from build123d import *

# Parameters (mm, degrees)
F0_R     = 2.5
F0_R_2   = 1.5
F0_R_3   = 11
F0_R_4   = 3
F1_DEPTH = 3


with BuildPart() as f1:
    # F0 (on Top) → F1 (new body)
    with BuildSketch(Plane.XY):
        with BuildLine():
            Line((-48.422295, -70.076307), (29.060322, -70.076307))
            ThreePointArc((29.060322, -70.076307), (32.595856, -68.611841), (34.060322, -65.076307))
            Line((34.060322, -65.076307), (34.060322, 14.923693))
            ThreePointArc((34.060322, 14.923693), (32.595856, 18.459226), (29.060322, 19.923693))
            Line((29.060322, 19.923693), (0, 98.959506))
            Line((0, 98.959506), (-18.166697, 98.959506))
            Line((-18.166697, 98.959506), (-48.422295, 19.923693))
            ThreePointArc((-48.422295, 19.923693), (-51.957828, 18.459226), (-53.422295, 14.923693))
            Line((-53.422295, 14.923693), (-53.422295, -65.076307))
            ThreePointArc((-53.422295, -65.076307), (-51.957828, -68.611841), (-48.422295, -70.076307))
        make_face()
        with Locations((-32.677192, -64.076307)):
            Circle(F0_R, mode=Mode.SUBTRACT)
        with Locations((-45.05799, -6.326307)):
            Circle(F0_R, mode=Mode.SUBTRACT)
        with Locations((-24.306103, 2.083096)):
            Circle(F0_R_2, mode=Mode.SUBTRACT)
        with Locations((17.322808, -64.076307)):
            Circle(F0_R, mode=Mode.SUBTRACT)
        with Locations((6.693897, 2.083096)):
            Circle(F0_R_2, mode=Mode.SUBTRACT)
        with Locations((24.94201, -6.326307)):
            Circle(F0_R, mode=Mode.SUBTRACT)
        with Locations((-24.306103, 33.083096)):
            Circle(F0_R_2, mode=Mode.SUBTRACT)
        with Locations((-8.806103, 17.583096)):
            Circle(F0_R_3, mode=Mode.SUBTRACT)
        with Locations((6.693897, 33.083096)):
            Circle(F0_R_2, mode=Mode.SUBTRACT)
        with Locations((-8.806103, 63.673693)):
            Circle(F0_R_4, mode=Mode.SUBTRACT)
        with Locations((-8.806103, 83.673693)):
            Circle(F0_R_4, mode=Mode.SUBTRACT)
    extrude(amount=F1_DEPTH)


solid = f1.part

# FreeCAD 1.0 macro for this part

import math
import FreeCAD as App
import Part
import Sketcher
from FreeCAD import Vector

doc = App.newDocument("Part")
params = doc.addObject("Spreadsheet::Sheet", "Params")
for row, (alias, value) in enumerate([
    ("sketch1_diameter", "5 mm"),
    ("sketch1_diameter2", "3 mm"),
    ("sketch1_diameter3", "22 mm"),
    ("sketch1_diameter4", "6 mm"),
    ("sketch1_radius", "5 mm"),
    ("pad1_length", "3 mm"),
], start=1):
    params.set(f"A{row}", alias)
    params.set(f"B{row}", "=" + value)
    params.setAlias(f"B{row}", alias)

body = doc.addObject("PartDesign::Body", "Body")

# Sketch on XY plane
sketch1 = body.newObject("Sketcher::SketchObject", "Sketch")
sketch1.AttachmentSupport = (doc.getObject("XY_Plane"), [""])
sketch1.MapMode = "FlatFace"
sketch1.addGeometry([
    Part.LineSegment(Vector(-48.4, -70.1, 0), Vector(29.1, -70.1, 0)),  # 0
    Part.ArcOfCircle(Part.Circle(Vector(29.1, -65.1, 0), Vector(0, 0, 1), 5), math.radians(-90), math.radians(0)),  # 1
    Part.LineSegment(Vector(34.1, -65.1, 0), Vector(34.1, 14.9, 0)),  # 2
    Part.ArcOfCircle(Part.Circle(Vector(29.1, 14.9, 0), Vector(0, 0, 1), 5), math.radians(0), math.radians(90)),  # 3
    Part.LineSegment(Vector(29.1, 19.9, 0), Vector(0, 99, 0)),  # 4
    Part.LineSegment(Vector(0, 99, 0), Vector(-18.2, 99, 0)),  # 5
    Part.LineSegment(Vector(-18.2, 99, 0), Vector(-48.4, 19.9, 0)),  # 6
    Part.ArcOfCircle(Part.Circle(Vector(-48.4, 14.9, 0), Vector(0, 0, 1), 5), math.radians(90), math.radians(180)),  # 7
    Part.LineSegment(Vector(-53.4, 14.9, 0), Vector(-53.4, -65.1, 0)),  # 8
    Part.ArcOfCircle(Part.Circle(Vector(-48.4, -65.1, 0), Vector(0, 0, 1), 5), math.radians(-180), math.radians(-90)),  # 9
    Part.Circle(Vector(-32.7, -64.1, 0), Vector(0, 0, 1), 2.5),  # 10
    Part.Circle(Vector(-45.1, -6.3, 0), Vector(0, 0, 1), 2.5),  # 11
    Part.Circle(Vector(-24.3, 2.1, 0), Vector(0, 0, 1), 1.5),  # 12
    Part.Circle(Vector(17.3, -64.1, 0), Vector(0, 0, 1), 2.5),  # 13
    Part.Circle(Vector(6.7, 2.1, 0), Vector(0, 0, 1), 1.5),  # 14
    Part.Circle(Vector(24.9, -6.3, 0), Vector(0, 0, 1), 2.5),  # 15
    Part.Circle(Vector(-24.3, 33.1, 0), Vector(0, 0, 1), 1.5),  # 16
    Part.Circle(Vector(-8.8, 17.6, 0), Vector(0, 0, 1), 11),  # 17
    Part.Circle(Vector(6.7, 33.1, 0), Vector(0, 0, 1), 1.5),  # 18
    Part.Circle(Vector(-8.8, 63.7, 0), Vector(0, 0, 1), 3),  # 19
    Part.Circle(Vector(-8.8, 83.7, 0), Vector(0, 0, 1), 3),  # 20
], False)
sketch1.addConstraint([
    Sketcher.Constraint("Tangent", 0, 2, 1, 1),
    Sketcher.Constraint("Tangent", 1, 2, 2, 1),
    Sketcher.Constraint("Tangent", 2, 2, 3, 1),
    Sketcher.Constraint("Coincident", 3, 2, 4, 1),
    Sketcher.Constraint("Coincident", 4, 2, 5, 1),
    Sketcher.Constraint("Coincident", 5, 2, 6, 1),
    Sketcher.Constraint("Coincident", 6, 2, 7, 1),
    Sketcher.Constraint("Tangent", 7, 2, 8, 1),
    Sketcher.Constraint("Tangent", 8, 2, 9, 1),
    Sketcher.Constraint("Tangent", 9, 2, 0, 1),
    Sketcher.Constraint("Horizontal", 0),
    Sketcher.Constraint("Vertical", 2),
    Sketcher.Constraint("Horizontal", 5),
    Sketcher.Constraint("Vertical", 8),
    Sketcher.Constraint("Equal", 1, 3),
    Sketcher.Constraint("Equal", 3, 7),
    Sketcher.Constraint("Equal", 7, 9),
    Sketcher.Constraint("Equal", 10, 11),
    Sketcher.Constraint("Equal", 11, 13),
    Sketcher.Constraint("Equal", 12, 14),
    Sketcher.Constraint("Equal", 13, 15),
    Sketcher.Constraint("Equal", 14, 16),
    Sketcher.Constraint("Equal", 16, 18),
    Sketcher.Constraint("Equal", 19, 20),
    Sketcher.Constraint("PointOnObject", 4, 2, -2),
    Sketcher.Constraint("Horizontal", 3, 3, 7, 3),
    Sketcher.Constraint("Horizontal", 10, 3, 13, 3),
    Sketcher.Constraint("Horizontal", 12, 3, 14, 3),
    Sketcher.Constraint("Horizontal", 11, 3, 15, 3),
    Sketcher.Constraint("Horizontal", 16, 3, 18, 3),
    Sketcher.Constraint("Vertical", 12, 3, 16, 3),
    Sketcher.Constraint("Vertical", 14, 3, 18, 3),
    Sketcher.Constraint("Vertical", 17, 3, 19, 3),
    Sketcher.Constraint("Vertical", 19, 3, 20, 3),
    Sketcher.Constraint("Vertical", 0, 2, 3, 2),
    Sketcher.Constraint("Vertical", 9, 3, 6, 2),
    Sketcher.Constraint("Diameter", 10, 5.0),
    Sketcher.Constraint("Diameter", 12, 3.0),
    Sketcher.Constraint("Diameter", 17, 22.0),
    Sketcher.Constraint("Diameter", 19, 6.0),
    Sketcher.Constraint("Radius", 1, 5.0),
    Sketcher.Constraint("DistanceY", 2, 1, 2, 2, 80.0),
    Sketcher.Constraint("DistanceY", 9, 3, 10, 3, 0.999999),
    Sketcher.Constraint("DistanceX", 10, 3, 13, 3, 50.0),
    Sketcher.Constraint("DistanceX", 12, 3, 14, 3, 31.0),
    Sketcher.Constraint("DistanceY", 12, 3, 16, 3, 31.0),
    Sketcher.Constraint("DistanceY", 19, 3, 20, 3, 20.0),
    Sketcher.Constraint("DistanceX", 16, 3, 17, 3, 15.5),
    Sketcher.Constraint("DistanceY", 17, 3, 16, 3, 15.5),
    Sketcher.Constraint("DistanceY", 9, 3, 11, 3, 58.749999),
    Sketcher.Constraint("DistanceY", 3, 3, 19, 3, 48.750001),
    Sketcher.Constraint("DistanceX", 9, 3, 10, 3, 15.745102),
    Sketcher.Constraint("DistanceX", 7, 3, 11, 3, 3.364302),
    Sketcher.Constraint("DistanceY", 9, 3, 12, 3, 67.159402),
    Sketcher.Constraint("Distance", 6, 84.62896),
    Sketcher.Constraint("DistanceX", 0, 1, 0, 2, 77.482617),
    Sketcher.Constraint("DistanceX", 5, 2, 5, 1, 18.166697),
    Sketcher.Constraint("DistanceX", -1, 1, 3, 3, 29.060321),
    Sketcher.Constraint("DistanceY", -1, 1, 3, 3, 14.923692),
    Sketcher.Constraint("DistanceX", -1, 1, 15, 3, 24.94201),
    Sketcher.Constraint("DistanceX", 7, 3, 12, 3, 24.116189),
])
sketch1.setExpression("Constraints[36]", "Params.sketch1_diameter")
sketch1.setExpression("Constraints[37]", "Params.sketch1_diameter2")
sketch1.setExpression("Constraints[38]", "Params.sketch1_diameter3")
sketch1.setExpression("Constraints[39]", "Params.sketch1_diameter4")
sketch1.setExpression("Constraints[40]", "Params.sketch1_radius")
pad1 = body.newObject("PartDesign::Pad", "Pad")
pad1.Profile = sketch1
pad1.setExpression("Length", "Params.pad1_length")

doc.recompute()
